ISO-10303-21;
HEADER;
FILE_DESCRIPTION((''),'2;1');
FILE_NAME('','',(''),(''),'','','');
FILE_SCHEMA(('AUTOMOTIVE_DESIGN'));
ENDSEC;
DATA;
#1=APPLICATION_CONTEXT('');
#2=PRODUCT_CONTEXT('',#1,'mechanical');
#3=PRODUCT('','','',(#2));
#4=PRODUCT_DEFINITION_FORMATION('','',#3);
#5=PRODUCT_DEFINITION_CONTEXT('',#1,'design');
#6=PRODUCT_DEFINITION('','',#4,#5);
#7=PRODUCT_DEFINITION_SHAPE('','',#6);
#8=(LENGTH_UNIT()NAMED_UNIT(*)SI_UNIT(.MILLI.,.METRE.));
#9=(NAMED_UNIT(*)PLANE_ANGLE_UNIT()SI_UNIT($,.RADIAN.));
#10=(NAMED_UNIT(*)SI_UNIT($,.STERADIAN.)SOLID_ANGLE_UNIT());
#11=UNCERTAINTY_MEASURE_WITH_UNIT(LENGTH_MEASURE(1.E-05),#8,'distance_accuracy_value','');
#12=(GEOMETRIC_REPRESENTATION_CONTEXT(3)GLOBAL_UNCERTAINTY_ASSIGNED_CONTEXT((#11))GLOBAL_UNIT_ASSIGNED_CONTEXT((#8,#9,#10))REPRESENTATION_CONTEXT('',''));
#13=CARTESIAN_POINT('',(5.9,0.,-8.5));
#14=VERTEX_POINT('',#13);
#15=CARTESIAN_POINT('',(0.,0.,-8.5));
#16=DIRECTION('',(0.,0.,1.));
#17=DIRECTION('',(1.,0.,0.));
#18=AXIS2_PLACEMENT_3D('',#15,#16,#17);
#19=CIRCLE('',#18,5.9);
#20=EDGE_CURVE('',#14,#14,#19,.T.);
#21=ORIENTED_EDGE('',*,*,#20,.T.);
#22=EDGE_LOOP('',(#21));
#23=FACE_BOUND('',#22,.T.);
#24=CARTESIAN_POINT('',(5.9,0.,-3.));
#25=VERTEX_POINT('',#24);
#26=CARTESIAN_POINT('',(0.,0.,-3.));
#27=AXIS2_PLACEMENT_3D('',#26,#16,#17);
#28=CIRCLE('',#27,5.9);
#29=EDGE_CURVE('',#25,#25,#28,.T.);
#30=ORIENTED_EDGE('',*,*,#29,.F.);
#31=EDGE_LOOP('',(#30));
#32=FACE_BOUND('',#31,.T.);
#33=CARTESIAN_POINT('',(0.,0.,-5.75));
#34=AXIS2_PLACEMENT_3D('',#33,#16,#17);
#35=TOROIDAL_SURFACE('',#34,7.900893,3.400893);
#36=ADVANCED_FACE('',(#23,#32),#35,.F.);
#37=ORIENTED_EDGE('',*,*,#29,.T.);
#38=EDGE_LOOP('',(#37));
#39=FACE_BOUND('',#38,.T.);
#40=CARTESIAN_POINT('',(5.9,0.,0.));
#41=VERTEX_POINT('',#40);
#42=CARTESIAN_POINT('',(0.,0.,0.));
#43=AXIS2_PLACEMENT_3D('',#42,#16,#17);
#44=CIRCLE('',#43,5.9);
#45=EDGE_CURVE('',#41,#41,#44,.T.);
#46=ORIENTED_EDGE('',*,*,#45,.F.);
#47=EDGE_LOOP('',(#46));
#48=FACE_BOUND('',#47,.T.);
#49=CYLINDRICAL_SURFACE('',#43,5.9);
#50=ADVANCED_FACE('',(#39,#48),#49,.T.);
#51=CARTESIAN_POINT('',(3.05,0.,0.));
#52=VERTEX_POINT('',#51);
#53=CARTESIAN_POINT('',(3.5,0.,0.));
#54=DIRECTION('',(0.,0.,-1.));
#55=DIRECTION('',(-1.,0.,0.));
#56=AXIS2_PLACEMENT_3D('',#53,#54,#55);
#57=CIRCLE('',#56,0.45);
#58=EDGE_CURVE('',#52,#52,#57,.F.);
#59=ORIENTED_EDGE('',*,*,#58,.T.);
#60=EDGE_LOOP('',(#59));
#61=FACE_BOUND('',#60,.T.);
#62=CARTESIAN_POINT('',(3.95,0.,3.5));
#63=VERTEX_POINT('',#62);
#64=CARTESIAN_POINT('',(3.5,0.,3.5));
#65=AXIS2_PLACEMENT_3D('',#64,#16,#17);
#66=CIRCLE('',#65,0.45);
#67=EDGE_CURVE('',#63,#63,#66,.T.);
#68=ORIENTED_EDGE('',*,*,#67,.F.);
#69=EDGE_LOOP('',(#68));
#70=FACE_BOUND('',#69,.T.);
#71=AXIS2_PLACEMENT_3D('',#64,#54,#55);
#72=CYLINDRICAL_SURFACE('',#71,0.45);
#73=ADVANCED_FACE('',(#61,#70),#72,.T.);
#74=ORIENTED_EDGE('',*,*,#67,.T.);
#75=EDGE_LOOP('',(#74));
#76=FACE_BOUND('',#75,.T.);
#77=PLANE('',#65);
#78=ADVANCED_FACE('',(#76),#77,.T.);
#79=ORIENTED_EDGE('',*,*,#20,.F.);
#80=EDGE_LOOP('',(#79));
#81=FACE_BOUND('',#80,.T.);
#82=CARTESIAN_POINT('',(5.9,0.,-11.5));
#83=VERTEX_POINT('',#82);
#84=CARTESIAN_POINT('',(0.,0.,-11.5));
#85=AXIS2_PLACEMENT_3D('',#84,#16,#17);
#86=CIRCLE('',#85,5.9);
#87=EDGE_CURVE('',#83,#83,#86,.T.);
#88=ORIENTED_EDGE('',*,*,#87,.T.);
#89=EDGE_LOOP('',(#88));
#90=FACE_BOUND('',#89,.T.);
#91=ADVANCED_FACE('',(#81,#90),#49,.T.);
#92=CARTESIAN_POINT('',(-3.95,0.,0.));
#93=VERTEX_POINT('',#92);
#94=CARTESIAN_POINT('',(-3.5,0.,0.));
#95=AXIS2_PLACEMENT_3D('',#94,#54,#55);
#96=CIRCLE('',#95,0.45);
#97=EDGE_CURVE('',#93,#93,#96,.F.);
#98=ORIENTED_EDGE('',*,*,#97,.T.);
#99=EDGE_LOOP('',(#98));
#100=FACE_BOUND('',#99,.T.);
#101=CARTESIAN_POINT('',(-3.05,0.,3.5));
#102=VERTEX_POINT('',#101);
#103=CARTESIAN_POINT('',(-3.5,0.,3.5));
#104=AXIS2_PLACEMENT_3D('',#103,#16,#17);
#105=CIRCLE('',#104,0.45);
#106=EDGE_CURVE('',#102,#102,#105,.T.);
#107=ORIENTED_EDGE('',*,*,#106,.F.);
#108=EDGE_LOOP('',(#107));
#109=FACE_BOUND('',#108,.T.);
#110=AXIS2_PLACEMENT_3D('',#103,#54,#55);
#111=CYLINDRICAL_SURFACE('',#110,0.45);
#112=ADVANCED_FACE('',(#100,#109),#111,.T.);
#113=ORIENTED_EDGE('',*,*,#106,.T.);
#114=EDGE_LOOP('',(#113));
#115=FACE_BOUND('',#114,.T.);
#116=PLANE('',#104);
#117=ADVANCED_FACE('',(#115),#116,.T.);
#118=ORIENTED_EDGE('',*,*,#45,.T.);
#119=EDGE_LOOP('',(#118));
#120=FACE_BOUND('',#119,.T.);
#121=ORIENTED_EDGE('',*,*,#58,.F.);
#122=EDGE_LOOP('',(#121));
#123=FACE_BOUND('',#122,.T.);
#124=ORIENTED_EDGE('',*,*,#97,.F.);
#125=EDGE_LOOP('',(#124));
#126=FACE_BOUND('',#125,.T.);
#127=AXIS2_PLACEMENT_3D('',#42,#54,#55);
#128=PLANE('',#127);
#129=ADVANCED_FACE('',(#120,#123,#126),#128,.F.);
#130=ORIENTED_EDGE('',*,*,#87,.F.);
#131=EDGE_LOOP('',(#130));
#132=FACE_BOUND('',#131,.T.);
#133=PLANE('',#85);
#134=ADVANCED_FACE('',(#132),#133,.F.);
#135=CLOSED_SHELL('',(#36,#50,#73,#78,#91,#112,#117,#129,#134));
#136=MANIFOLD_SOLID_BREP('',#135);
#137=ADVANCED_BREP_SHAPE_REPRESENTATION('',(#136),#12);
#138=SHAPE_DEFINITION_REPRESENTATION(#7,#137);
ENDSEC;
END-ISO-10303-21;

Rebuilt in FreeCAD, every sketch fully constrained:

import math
import FreeCAD as App
import Part
import Sketcher
Q = App.Units.Quantity

doc = App.newDocument("Part")
body = doc.addObject("PartDesign::Body", "Body")

sketch1 = body.newObject("Sketcher::SketchObject", "Sketch")
sketch1.AttachmentSupport = (doc.getObject("XZ_Plane"), [""])
sketch1.MapMode = "FlatFace"
sketch1.addGeometry(Part.LineSegment(App.Vector(0, 0, 0), App.Vector(0, -11.5, 0)), False)
sketch1.addGeometry(Part.LineSegment(App.Vector(0, -11.5, 0), App.Vector(-5.9, -11.5, 0)), False)
sketch1.addGeometry(Part.LineSegment(App.Vector(-5.9, -11.5, 0), App.Vector(-5.9, -8.5, 0)), False)
sketch1.addGeometry(Part.ArcOfCircle(Part.Circle(App.Vector(-7.900893, -5.75, 0), App.Vector(0, 0, 1), 3.400893), math.radians(-53.960461), math.radians(53.960461)), False)
sketch1.addGeometry(Part.LineSegment(App.Vector(-5.9, -3, 0), App.Vector(-5.9, 0, 0)), False)
sketch1.addGeometry(Part.LineSegment(App.Vector(-5.9, 0, 0), App.Vector(0, 0, 0)), False)
sketch1.addConstraint(Sketcher.Constraint("Coincident", 0, 2, 1, 1))
sketch1.addConstraint(Sketcher.Constraint("Coincident", 1, 2, 2, 1))
sketch1.addConstraint(Sketcher.Constraint("Coincident", 2, 2, 3, 1))
sketch1.addConstraint(Sketcher.Constraint("Coincident", 3, 2, 4, 1))
sketch1.addConstraint(Sketcher.Constraint("Coincident", 4, 2, 5, 1))
sketch1.addConstraint(Sketcher.Constraint("Coincident", 5, 2, 0, 1))
sketch1.addConstraint(Sketcher.Constraint("Vertical", 0))
sketch1.addConstraint(Sketcher.Constraint("Horizontal", 1))
sketch1.addConstraint(Sketcher.Constraint("Vertical", 2))
sketch1.addConstraint(Sketcher.Constraint("Vertical", 4))
sketch1.addConstraint(Sketcher.Constraint("Horizontal", 5))
sketch1.addConstraint(Sketcher.Constraint("Coincident", 5, 2, -1, 1))
sketch1.addConstraint(Sketcher.Constraint("Vertical", 2, 2, 3, 2))
sketch1.addConstraint(Sketcher.Constraint("Equal", 2, 4))
sketch1.addConstraint(Sketcher.Constraint("DistanceY", 2, 1, 2, 2, Q("3 mm")))
sketch1.addConstraint(Sketcher.Constraint("DistanceX", 1, 2, 1, 1, Q("5.9 mm")))
sketch1.addConstraint(Sketcher.Constraint("DistanceY", 0, 2, 0, 1, Q("11.5 mm")))
sketch1.addConstraint(Sketcher.Constraint("Radius", 3, Q("3.400893 mm")))
revolution = body.newObject("PartDesign::Revolution", "Revolution")
revolution.Profile = sketch1
revolution.ReferenceAxis = (sketch1, ["V_Axis"])
revolution.Angle = 360

sketch2 = body.newObject("Sketcher::SketchObject", "Sketch001")
sketch2.AttachmentSupport = (doc.getObject("XY_Plane"), [""])
sketch2.MapMode = "FlatFace"
sketch2.addGeometry(Part.Circle(App.Vector(-3.5, 0, 0), App.Vector(0, 0, 1), 0.45), False)
sketch2.addGeometry(Part.Circle(App.Vector(3.5, 0, 0), App.Vector(0, 0, 1), 0.45), False)
sketch2.addConstraint(Sketcher.Constraint("Equal", 0, 1))
sketch2.addConstraint(Sketcher.Constraint("Symmetric", 0, 3, 1, 3, -1, 1))
sketch2.addConstraint(Sketcher.Constraint("PointOnObject", 0, 3, -1))
sketch2.addConstraint(Sketcher.Constraint("Diameter", 0, Q("0.9 mm")))
sketch2.addConstraint(Sketcher.Constraint("DistanceX", 0, 3, 1, 3, Q("7 mm")))
pad1 = body.newObject("PartDesign::Pad", "Pad")
pad1.Profile = sketch2
pad1.Length = 3.5

doc.recompute()
